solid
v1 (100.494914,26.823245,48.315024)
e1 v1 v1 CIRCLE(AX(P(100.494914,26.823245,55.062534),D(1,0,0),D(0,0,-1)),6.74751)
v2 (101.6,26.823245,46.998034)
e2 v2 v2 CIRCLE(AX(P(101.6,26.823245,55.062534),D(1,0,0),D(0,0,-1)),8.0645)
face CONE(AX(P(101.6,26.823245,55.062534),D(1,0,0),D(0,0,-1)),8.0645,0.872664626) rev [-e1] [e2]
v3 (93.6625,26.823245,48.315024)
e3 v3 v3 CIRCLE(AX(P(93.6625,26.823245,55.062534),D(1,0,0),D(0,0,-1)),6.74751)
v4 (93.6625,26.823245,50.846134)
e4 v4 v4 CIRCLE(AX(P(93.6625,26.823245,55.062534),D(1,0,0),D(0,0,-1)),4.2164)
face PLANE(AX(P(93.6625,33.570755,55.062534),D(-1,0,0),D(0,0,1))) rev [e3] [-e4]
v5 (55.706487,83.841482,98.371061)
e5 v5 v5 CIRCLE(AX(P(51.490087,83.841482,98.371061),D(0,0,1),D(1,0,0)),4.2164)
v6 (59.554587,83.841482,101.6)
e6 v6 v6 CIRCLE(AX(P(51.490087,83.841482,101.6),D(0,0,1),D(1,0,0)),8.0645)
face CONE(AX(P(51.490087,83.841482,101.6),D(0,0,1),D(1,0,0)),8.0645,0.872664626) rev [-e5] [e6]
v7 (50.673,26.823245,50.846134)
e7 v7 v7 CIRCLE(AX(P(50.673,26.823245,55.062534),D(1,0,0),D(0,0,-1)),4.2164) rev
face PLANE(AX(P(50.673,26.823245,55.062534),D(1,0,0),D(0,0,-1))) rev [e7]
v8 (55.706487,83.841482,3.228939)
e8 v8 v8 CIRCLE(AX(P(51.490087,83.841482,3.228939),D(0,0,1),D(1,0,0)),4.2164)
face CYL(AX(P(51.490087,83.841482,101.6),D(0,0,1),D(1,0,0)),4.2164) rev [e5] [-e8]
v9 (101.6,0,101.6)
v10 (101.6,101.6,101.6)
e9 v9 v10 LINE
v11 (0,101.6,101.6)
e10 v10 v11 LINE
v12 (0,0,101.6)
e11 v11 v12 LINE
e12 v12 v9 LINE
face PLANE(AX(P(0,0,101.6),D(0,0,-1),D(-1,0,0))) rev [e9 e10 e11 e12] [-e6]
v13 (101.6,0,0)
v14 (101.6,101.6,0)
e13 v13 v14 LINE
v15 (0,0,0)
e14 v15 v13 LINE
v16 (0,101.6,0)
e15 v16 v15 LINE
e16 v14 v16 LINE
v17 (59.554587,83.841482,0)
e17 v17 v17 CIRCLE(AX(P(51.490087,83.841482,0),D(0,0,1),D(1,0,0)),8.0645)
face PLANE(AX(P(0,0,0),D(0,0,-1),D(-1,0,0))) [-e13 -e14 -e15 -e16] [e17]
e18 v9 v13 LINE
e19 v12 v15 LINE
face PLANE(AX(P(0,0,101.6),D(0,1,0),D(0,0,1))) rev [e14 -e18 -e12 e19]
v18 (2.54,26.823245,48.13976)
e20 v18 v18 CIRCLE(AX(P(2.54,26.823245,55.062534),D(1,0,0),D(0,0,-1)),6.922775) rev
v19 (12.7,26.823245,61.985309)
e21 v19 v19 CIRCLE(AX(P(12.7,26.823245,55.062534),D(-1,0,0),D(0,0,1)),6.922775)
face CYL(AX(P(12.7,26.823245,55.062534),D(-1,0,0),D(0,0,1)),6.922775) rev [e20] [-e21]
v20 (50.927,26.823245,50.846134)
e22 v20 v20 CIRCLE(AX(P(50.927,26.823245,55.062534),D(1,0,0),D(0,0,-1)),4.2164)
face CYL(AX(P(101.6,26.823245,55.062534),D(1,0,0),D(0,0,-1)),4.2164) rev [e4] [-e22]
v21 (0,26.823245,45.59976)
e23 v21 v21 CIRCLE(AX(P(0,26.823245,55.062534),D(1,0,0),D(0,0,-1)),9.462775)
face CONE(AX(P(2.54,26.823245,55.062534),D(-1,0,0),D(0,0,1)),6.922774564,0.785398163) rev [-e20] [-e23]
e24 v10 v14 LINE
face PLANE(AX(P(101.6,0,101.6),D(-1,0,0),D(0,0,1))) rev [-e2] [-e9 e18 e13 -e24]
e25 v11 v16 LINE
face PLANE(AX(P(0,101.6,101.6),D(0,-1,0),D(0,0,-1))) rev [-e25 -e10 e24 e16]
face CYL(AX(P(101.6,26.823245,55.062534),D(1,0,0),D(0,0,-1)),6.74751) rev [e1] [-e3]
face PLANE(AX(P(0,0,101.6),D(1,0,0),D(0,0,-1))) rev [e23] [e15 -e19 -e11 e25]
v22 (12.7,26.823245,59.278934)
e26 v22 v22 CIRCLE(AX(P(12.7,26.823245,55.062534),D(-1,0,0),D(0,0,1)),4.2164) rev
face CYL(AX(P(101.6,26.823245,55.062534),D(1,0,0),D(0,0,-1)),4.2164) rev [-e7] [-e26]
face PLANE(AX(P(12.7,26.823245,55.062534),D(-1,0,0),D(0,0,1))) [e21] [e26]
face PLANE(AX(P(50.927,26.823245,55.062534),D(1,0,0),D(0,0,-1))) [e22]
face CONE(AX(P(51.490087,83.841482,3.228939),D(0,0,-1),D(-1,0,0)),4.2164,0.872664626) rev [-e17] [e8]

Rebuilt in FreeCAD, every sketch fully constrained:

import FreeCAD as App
import Part
import Sketcher
Q = App.Units.Quantity


def edges_at(feature, points):
    """Names of the edges that pass closest to the given points."""
    edges = feature.Shape.Edges
    near = lambda p: min(range(len(edges)), key=lambda i: edges[i].distToShape(Part.Vertex(*p))[0])
    return sorted({f"Edge{near(p) + 1}" for p in points})


def add_polygon(sketch, points):
    """Adds a closed chain of lines whose ends are joined by coincident constraints."""
    first, n = sketch.GeometryCount, len(points)
    for a, b in zip(points, points[1:] + points[:1]):
        sketch.addGeometry(Part.LineSegment(App.Vector(*a, 0), App.Vector(*b, 0)), False)
    for i in range(n):
        sketch.addConstraint(Sketcher.Constraint("Coincident", first + i, 2, first + (i + 1) % n, 1))

doc = App.newDocument("Part")
body = doc.addObject("PartDesign::Body", "Body")

sketch1 = body.newObject("Sketcher::SketchObject", "Sketch")
sketch1.AttachmentSupport = (doc.getObject("XY_Plane"), [""])
sketch1.MapMode = "FlatFace"
add_polygon(sketch1, [(0, 101.6), (0, 0), (101.6, 0), (101.6, 101.6)])
sketch1.addConstraint(Sketcher.Constraint("Vertical", 0))
sketch1.addConstraint(Sketcher.Constraint("Horizontal", 1))
sketch1.addConstraint(Sketcher.Constraint("Vertical", 2))
sketch1.addConstraint(Sketcher.Constraint("Horizontal", 3))
sketch1.addConstraint(Sketcher.Constraint("Coincident", 0, 2, -1, 1))
sketch1.addConstraint(Sketcher.Constraint("Equal", 3, 0))
sketch1.addConstraint(Sketcher.Constraint("DistanceX", 1, 1, 1, 2, Q("4 in")))
pad1 = body.newObject("PartDesign::Pad", "Pad")
pad1.Profile = sketch1
pad1.Length = Q("4 in")

sketch2 = body.newObject("Sketcher::SketchObject", "Sketch001")
sketch2.AttachmentSupport = (doc.getObject("YZ_Plane"), [""])
sketch2.MapMode = "FlatFace"
sketch2.AttachmentOffset = App.Placement(App.Vector(0, 0, 51.490087), App.Rotation())
add_polygon(sketch2, [(83.841482, 0), (83.841482, 101.6), (75.776982, 101.6), (79.625082, 98.371061), (79.625082, 3.228939), (75.776982, 0)])
sketch2.addGeometry(Part.LineSegment(App.Vector(83.841482, 101.6, 0), App.Vector(83.841482, 0, 0)), True)
sketch2.addConstraint(Sketcher.Constraint("Vertical", 0))
sketch2.addConstraint(Sketcher.Constraint("Horizontal", 1))
sketch2.addConstraint(Sketcher.Constraint("Vertical", 3))
sketch2.addConstraint(Sketcher.Constraint("Horizontal", 5))
sketch2.addConstraint(Sketcher.Constraint("Vertical", 6))
sketch2.addConstraint(Sketcher.Constraint("Coincident", 6, 1, 0, 2))
sketch2.addConstraint(Sketcher.Constraint("PointOnObject", 4, 2, -1))
sketch2.addConstraint(Sketcher.Constraint("PointOnObject", 6, 2, -1))
sketch2.addConstraint(Sketcher.Constraint("Vertical", 1, 2, 4, 2))
sketch2.addConstraint(Sketcher.Constraint("Equal", 2, 4))
sketch2.addConstraint(Sketcher.Constraint("DistanceY", 0, 1, 0, 2, Q("4 in")))
sketch2.addConstraint(Sketcher.Constraint("Angle", 2, Q("-40 deg")))
sketch2.addConstraint(Sketcher.Constraint("DistanceX", 1, 2, 1, 1, Q("0.3175 in")))
sketch2.addConstraint(Sketcher.Constraint("DistanceX", 2, 2, 0, 2, Q("0.166 in")))
sketch2.addConstraint(Sketcher.Constraint("DistanceX", -1, 1, 0, 2, Q("83.841482 mm")))
groove = body.newObject("PartDesign::Groove", "Groove")
groove.Profile = sketch2
groove.ReferenceAxis = (sketch2, ["Axis0"])
groove.Angle = 360

sketch3 = body.newObject("Sketcher::SketchObject", "Sketch002")
sketch3.AttachmentSupport = (doc.getObject("XZ_Plane"), [""])
sketch3.MapMode = "FlatFace"
sketch3.AttachmentOffset = App.Placement(App.Vector(0, 0, -26.823245), App.Rotation())
add_polygon(sketch3, [(0, 55.062534), (101.6, 55.062534), (101.6, 46.998034), (100.494914, 48.315024), (93.6625, 48.315024), (93.6625, 50.846134), (0, 50.846134)])
sketch3.addGeometry(Part.LineSegment(App.Vector(101.6, 55.062534, 0), App.Vector(0, 55.062534, 0)), True)
sketch3.addConstraint(Sketcher.Constraint("Horizontal", 0))
sketch3.addConstraint(Sketcher.Constraint("Vertical", 1))
sketch3.addConstraint(Sketcher.Constraint("Horizontal", 3))
sketch3.addConstraint(Sketcher.Constraint("Vertical", 4))
sketch3.addConstraint(Sketcher.Constraint("Horizontal", 5))
sketch3.addConstraint(Sketcher.Constraint("Vertical", 6))
sketch3.addConstraint(Sketcher.Constraint("Horizontal", 7))
sketch3.addConstraint(Sketcher.Constraint("Coincident", 7, 1, 0, 2))
sketch3.addConstraint(Sketcher.Constraint("PointOnObject", 5, 2, -2))
sketch3.addConstraint(Sketcher.Constraint("PointOnObject", 7, 2, -2))
sketch3.addConstraint(Sketcher.Constraint("DistanceX", 0, 1, 0, 2, Q("4 in")))
sketch3.addConstraint(Sketcher.Constraint("Angle", 2, Q("130 deg")))
sketch3.addConstraint(Sketcher.Constraint("DistanceX", 5, 2, 5, 1, Q("3.6875 in")))
sketch3.addConstraint(Sketcher.Constraint("DistanceY", 6, 1, 6, 2, Q("0.166 in")))
sketch3.addConstraint(Sketcher.Constraint("DistanceY", 1, 2, 1, 1, Q("0.3175 in")))
sketch3.addConstraint(Sketcher.Constraint("DistanceY", 4, 1, 4, 2, Q("2.53111 mm")))
sketch3.addConstraint(Sketcher.Constraint("DistanceY", -1, 1, 0, 2, Q("55.062534 mm")))
groove2 = body.newObject("PartDesign::Groove", "Groove001")
groove2.Profile = sketch3
groove2.ReferenceAxis = (sketch3, ["Axis0"])
groove2.Angle = 360

sketch4 = body.newObject("Sketcher::SketchObject", "Sketch003")
sketch4.AttachmentSupport = (doc.getObject("YZ_Plane"), [""])
sketch4.MapMode = "FlatFace"
sketch4.addGeometry(Part.Circle(App.Vector(26.823245, 55.062534, 0), App.Vector(0, 0, 1), 6.922775), False)
sketch4.addConstraint(Sketcher.Constraint("Diameter", 0, Q("13.845549 mm")))
sketch4.addConstraint(Sketcher.Constraint("DistanceX", -1, 1, 0, 3, Q("26.823245 mm")))
sketch4.addConstraint(Sketcher.Constraint("DistanceY", -1, 1, 0, 3, Q("55.062534 mm")))
pocket1 = body.newObject("PartDesign::Pocket", "Pocket")
pocket1.Profile = sketch4
pocket1.Length = Q("0.5 in")
pocket1.Reversed = True
doc.recompute()

chamfer = body.newObject("PartDesign::Chamfer", "Chamfer")
chamfer.Base = (pocket1, edges_at(pocket1, [(0, 26.823, 48.14)]))
chamfer.Size = Q("0.1 in")

sketch5 = body.newObject("Sketcher::SketchObject", "Sketch004")
sketch5.AttachmentSupport = (doc.getObject("YZ_Plane"), [""])
sketch5.MapMode = "FlatFace"
sketch5.AttachmentOffset = App.Placement(App.Vector(0, 0, 2 * 25.4), App.Rotation())
sketch5.addGeometry(Part.Circle(App.Vector(26.823245, 55.062534, 0), App.Vector(0, 0, 1), 4.2164), False)
sketch5.addConstraint(Sketcher.Constraint("Diameter", 0, Q("0.332 in")))
sketch5.addConstraint(Sketcher.Constraint("DistanceX", -1, 1, 0, 3, Q("26.823245 mm")))
sketch5.addConstraint(Sketcher.Constraint("DistanceY", -1, 1, 0, 3, Q("55.062534 mm")))
pad2 = body.newObject("PartDesign::Pad", "Pad001")
pad2.Profile = sketch5
pad2.Length = Q("0.01 in")
pad2.Midplane = True

doc.recompute()
